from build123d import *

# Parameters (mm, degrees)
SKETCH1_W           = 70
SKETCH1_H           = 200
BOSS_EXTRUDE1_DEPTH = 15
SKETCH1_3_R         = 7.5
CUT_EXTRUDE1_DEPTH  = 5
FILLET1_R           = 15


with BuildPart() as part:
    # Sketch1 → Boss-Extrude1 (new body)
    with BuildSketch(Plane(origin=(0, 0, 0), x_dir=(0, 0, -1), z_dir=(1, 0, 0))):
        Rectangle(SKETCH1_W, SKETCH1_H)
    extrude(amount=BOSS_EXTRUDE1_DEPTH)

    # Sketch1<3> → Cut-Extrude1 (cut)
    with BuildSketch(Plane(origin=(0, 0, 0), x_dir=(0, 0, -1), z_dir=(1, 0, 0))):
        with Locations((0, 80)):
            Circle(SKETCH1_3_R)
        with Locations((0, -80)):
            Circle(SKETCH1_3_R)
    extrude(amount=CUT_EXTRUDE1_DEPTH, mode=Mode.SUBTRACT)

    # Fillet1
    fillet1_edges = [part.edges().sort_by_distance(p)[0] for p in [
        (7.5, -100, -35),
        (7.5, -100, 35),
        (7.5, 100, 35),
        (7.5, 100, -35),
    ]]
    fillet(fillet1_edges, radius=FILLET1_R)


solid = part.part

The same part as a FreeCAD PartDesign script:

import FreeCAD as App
import Part
import Sketcher


def edges_at(feature, points):
    """Names of the edges that pass closest to the given points."""
    edges = feature.Shape.Edges
    near = lambda p: min(range(len(edges)), key=lambda i: edges[i].distToShape(Part.Vertex(*p))[0])
    return sorted({f"Edge{near(p) + 1}" for p in points})

doc = App.newDocument("Part")
params = doc.addObject("Spreadsheet::Sheet", "Params")
for row, (alias, value) in enumerate([
    ("sketch1_width", "200 mm"),
    ("sketch1_height", "70 mm"),
    ("pad1_length", "15 mm"),
    ("sketch2_diameter", "15 mm"),
    ("pocket1_length", "5 mm"),
    ("fillet_radius", "15 mm"),
], start=1):
    params.set(f"A{row}", alias)
    params.set(f"B{row}", "=" + value)
    params.setAlias(f"B{row}", alias)

body = doc.addObject("PartDesign::Body", "Body")

# Sketch on YZ plane
sketch1 = body.newObject("Sketcher::SketchObject", "Sketch")
sketch1.AttachmentSupport = (doc.getObject("YZ_Plane"), [""])
sketch1.MapMode = "FlatFace"
sketch1.addGeometry([
    Part.LineSegment(App.Vector(100, 35, 0), App.Vector(-100, 35, 0)),
    Part.LineSegment(App.Vector(-100, 35, 0), App.Vector(-100, -35, 0)),
    Part.LineSegment(App.Vector(-100, -35, 0), App.Vector(100, -35, 0)),
    Part.LineSegment(App.Vector(100, -35, 0), App.Vector(100, 35, 0)),
], False)
sketch1.addConstraint([
    Sketcher.Constraint("Coincident", 0, 2, 1, 1),
    Sketcher.Constraint("Coincident", 1, 2, 2, 1),
    Sketcher.Constraint("Coincident", 2, 2, 3, 1),
    Sketcher.Constraint("Coincident", 3, 2, 0, 1),
    Sketcher.Constraint("Horizontal", 0),
    Sketcher.Constraint("Vertical", 1),
    Sketcher.Constraint("Horizontal", 2),
    Sketcher.Constraint("Vertical", 3),
    Sketcher.Constraint("Symmetric", 0, 2, 2, 2, -1, 1),
    Sketcher.Constraint("DistanceX", 0, 2, 0, 1, 200.0),
    Sketcher.Constraint("DistanceY", 1, 2, 1, 1, 70.0),
])
sketch1.setExpression("Constraints[9]", "Params.sketch1_width")
sketch1.setExpression("Constraints[10]", "Params.sketch1_height")
pad1 = body.newObject("PartDesign::Pad", "Pad")
pad1.Profile = sketch1
pad1.setExpression("Length", "Params.pad1_length")

# Sketch on YZ plane
sketch2 = body.newObject("Sketcher::SketchObject", "Sketch001")
sketch2.AttachmentSupport = (doc.getObject("YZ_Plane"), [""])
sketch2.MapMode = "FlatFace"
sketch2.addGeometry([
    Part.Circle(App.Vector(80, 0, 0), App.Vector(0, 0, 1), 7.5),
    Part.Circle(App.Vector(-80, 0, 0), App.Vector(0, 0, 1), 7.5),
], False)
sketch2.addConstraint([
    Sketcher.Constraint("Equal", 0, 1),
    Sketcher.Constraint("Symmetric", 0, 3, 1, 3, -1, 1),
    Sketcher.Constraint("PointOnObject", 0, 3, -1),
    Sketcher.Constraint("Diameter", 0, 15.0),
    Sketcher.Constraint("DistanceX", -1, 1, 0, 3, 80.0),
])
sketch2.setExpression("Constraints[3]", "Params.sketch2_diameter")
pocket1 = body.newObject("PartDesign::Pocket", "Pocket")
pocket1.Profile = sketch2
pocket1.setExpression("Length", "Params.pocket1_length")
pocket1.Reversed = True
doc.recompute()

fillet = body.newObject("PartDesign::Fillet", "Fillet")
fillet.Base = (pocket1, edges_at(pocket1, [
    (7.5, -100, -35),
    (7.5, -100, 35),
    (7.5, 100, 35),
    (7.5, 100, -35),
]))
fillet.setExpression("Radius", "Params.fillet_radius")

doc.recompute()
